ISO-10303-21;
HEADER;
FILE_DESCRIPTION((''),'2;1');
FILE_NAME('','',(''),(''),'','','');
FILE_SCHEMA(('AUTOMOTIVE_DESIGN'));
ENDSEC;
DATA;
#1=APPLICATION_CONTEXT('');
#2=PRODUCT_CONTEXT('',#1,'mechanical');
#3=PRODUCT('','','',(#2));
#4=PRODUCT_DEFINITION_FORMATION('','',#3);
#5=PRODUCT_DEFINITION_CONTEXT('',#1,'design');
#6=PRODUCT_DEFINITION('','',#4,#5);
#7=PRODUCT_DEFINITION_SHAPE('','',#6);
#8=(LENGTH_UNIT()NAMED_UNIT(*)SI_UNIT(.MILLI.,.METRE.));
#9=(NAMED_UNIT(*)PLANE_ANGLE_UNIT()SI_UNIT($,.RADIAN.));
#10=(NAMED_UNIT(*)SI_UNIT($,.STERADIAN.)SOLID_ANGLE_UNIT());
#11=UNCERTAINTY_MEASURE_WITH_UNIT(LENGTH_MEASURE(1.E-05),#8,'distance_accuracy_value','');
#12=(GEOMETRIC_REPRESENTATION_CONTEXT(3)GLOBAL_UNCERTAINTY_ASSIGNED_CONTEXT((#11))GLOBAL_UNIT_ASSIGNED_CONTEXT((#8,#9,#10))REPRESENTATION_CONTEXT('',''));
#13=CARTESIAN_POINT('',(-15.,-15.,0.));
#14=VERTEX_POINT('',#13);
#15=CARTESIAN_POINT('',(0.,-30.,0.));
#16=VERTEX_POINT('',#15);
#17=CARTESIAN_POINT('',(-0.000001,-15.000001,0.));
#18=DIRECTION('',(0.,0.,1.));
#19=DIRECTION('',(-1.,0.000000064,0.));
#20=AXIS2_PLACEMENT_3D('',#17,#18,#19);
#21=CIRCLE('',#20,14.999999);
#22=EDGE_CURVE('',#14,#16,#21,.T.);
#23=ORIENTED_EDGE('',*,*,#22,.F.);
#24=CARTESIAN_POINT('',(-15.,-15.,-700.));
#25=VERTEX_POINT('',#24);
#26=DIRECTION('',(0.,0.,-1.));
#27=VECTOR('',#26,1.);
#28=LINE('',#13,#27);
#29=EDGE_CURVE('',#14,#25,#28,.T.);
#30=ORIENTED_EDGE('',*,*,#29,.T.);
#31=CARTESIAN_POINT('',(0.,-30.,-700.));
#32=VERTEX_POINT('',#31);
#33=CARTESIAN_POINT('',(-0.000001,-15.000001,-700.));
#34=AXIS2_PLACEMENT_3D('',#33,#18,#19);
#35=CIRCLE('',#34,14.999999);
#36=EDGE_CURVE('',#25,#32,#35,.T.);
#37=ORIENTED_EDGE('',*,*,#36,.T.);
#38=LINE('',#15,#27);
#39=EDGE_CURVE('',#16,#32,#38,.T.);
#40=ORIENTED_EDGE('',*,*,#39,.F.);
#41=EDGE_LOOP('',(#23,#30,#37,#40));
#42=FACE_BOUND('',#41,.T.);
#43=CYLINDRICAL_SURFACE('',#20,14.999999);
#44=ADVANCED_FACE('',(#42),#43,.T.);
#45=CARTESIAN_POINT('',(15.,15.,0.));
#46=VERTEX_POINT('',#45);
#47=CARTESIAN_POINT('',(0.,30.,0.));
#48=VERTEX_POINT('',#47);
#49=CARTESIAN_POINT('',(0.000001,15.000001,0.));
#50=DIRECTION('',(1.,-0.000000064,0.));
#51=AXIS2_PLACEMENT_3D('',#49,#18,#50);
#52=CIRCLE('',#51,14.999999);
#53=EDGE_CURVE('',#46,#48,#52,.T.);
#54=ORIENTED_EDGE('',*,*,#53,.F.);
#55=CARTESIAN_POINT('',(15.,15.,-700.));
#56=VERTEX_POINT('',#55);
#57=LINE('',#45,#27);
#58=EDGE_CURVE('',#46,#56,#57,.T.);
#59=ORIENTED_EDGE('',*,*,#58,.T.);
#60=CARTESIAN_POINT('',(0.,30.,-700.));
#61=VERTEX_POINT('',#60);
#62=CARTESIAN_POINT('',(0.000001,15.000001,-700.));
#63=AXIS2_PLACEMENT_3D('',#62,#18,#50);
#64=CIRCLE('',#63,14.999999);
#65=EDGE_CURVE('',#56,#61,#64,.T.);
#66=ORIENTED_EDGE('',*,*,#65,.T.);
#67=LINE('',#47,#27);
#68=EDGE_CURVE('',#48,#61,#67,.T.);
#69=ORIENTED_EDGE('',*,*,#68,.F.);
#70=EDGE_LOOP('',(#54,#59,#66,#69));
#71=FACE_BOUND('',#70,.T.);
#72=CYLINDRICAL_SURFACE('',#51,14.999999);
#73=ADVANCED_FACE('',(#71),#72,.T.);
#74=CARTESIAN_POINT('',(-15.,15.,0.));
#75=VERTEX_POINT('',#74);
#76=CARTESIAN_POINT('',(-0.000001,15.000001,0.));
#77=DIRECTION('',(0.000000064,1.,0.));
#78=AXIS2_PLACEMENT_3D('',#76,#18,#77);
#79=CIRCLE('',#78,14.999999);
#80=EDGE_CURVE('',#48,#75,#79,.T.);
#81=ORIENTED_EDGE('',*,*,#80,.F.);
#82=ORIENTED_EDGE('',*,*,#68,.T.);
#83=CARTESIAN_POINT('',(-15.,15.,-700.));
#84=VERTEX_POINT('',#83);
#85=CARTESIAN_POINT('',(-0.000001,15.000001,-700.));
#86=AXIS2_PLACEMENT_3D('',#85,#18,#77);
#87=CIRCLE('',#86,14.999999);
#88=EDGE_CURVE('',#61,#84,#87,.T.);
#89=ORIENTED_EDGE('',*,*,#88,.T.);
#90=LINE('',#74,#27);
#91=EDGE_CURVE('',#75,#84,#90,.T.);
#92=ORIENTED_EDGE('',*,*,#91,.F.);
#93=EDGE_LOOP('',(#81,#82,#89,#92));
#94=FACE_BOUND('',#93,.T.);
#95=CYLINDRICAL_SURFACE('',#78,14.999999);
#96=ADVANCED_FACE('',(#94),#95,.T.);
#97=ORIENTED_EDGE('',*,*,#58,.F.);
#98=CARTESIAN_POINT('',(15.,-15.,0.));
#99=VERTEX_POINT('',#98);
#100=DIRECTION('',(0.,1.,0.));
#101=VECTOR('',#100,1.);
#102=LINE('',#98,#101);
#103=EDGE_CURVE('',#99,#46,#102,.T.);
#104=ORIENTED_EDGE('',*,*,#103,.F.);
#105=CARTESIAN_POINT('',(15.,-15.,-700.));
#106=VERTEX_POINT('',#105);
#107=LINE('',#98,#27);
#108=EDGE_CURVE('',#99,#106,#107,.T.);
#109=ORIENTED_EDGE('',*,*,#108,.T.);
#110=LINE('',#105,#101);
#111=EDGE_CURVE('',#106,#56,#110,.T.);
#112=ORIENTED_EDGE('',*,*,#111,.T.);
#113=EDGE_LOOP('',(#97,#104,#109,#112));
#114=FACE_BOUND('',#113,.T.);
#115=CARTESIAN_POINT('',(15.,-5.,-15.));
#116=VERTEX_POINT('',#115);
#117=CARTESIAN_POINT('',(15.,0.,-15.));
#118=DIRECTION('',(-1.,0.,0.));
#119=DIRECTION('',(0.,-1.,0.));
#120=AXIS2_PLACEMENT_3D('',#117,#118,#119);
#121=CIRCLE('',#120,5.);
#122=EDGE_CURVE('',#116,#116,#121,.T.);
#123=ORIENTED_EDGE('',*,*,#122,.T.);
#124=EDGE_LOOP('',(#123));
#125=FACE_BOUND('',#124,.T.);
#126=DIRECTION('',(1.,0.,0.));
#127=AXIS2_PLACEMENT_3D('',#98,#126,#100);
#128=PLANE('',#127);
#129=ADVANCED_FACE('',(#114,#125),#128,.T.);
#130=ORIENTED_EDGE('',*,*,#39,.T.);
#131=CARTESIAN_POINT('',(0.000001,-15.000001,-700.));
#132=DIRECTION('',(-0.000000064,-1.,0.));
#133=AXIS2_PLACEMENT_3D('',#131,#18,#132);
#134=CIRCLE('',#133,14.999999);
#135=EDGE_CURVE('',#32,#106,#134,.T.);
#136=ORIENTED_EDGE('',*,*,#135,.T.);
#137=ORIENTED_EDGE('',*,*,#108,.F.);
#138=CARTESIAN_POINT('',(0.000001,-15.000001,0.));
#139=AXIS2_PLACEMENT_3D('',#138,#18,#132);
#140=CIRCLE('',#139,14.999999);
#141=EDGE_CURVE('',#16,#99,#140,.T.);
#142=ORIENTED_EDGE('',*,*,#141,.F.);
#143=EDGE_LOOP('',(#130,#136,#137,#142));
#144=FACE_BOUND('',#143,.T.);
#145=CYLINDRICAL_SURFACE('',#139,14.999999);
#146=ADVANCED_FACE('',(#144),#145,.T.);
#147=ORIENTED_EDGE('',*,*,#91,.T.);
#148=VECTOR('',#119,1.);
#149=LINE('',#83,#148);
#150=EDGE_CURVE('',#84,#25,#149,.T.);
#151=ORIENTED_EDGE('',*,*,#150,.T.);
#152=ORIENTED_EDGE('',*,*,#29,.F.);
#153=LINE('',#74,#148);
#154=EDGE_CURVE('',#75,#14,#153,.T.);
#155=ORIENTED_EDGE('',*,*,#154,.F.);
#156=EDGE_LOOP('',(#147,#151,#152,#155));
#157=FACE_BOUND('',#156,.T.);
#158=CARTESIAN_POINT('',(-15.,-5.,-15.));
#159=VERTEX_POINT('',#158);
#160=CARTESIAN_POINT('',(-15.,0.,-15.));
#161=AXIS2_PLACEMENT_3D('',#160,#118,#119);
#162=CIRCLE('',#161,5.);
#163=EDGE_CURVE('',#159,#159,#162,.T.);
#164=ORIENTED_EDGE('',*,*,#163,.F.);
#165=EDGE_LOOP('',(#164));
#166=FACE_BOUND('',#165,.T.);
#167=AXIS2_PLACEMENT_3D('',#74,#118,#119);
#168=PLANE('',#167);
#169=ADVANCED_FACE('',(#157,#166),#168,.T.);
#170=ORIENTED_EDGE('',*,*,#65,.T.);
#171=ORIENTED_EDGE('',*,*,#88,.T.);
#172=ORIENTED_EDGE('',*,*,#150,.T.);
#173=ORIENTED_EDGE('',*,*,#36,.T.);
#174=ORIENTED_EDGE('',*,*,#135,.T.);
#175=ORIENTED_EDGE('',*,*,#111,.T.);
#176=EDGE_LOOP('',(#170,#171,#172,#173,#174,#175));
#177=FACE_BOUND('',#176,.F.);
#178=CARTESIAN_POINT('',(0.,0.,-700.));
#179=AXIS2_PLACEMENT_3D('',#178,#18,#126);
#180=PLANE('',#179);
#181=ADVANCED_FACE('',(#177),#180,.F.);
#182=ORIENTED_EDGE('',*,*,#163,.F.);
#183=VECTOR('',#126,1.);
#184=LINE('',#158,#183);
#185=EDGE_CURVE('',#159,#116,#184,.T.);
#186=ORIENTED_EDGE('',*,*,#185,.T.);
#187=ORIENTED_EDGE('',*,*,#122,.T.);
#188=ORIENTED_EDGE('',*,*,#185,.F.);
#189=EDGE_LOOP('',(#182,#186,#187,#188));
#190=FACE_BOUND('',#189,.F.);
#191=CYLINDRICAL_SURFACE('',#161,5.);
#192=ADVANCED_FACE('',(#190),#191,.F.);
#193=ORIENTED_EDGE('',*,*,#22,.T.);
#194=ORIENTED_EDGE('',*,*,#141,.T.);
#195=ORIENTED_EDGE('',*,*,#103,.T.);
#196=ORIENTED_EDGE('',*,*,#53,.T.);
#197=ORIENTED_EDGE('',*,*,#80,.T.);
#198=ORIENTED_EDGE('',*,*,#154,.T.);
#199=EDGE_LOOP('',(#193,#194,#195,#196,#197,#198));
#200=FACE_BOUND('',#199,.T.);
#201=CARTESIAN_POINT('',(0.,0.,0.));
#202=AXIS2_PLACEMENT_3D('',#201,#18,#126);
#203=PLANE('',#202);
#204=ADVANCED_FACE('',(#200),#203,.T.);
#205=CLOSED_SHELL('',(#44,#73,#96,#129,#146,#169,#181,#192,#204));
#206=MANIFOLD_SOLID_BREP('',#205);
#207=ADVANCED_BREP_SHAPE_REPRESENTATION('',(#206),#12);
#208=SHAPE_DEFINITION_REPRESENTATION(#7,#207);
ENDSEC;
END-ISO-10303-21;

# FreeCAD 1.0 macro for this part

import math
import FreeCAD as App
import Part
import Sketcher

V = App.Vector
Q = App.Units.Quantity

doc = App.newDocument("Part")
params = doc.addObject("Spreadsheet::Sheet", "Params")
for row, (alias, value) in enumerate([
    ("sketch1_radius", "14.999999 mm"),
    ("sketch1_height", "30 mm"),
    ("pad1_length", "700 mm"),
    ("sketch2_diameter", "10 mm"),
    ("pocket1_length", "35 mm"),
], start=1):
    params.set(f"A{row}", alias)
    params.set(f"B{row}", "=" + value)
    params.setAlias(f"B{row}", alias)

body = doc.addObject("PartDesign::Body", "Body")

# Sketch on XY plane
sketch1 = doc.addObject("Sketcher::SketchObject", "Sketch")
body.addObject(sketch1)
sketch1.AttachmentSupport = (doc.XY_Plane, [""])
sketch1.MapMode = "FlatFace"
sketch1.addGeometry([
    Part.ArcOfCircle(Part.Circle(V(0, 15, 0), V(0, 0, 1), 15), math.radians(90), math.radians(180)),  # 0
    Part.LineSegment(V(-15, 15, 0), V(-15, -15, 0)),  # 1
    Part.ArcOfCircle(Part.Circle(V(0, -15, 0), V(0, 0, 1), 15), math.radians(180), math.radians(270)),  # 2
    Part.ArcOfCircle(Part.Circle(V(0, -15, 0), V(0, 0, 1), 15), math.radians(-90), math.radians(0)),  # 3
    Part.LineSegment(V(15, -15, 0), V(15, 15, 0)),  # 4
    Part.ArcOfCircle(Part.Circle(V(0, 15, 0), V(0, 0, 1), 15), math.radians(0), math.radians(90)),  # 5
], False)
sketch1.addConstraint([
    Sketcher.Constraint("Tangent", 0, 2, 1, 1),
    Sketcher.Constraint("Tangent", 1, 2, 2, 1),
    Sketcher.Constraint("Tangent", 2, 2, 3, 1),
    Sketcher.Constraint("Tangent", 3, 2, 4, 1),
    Sketcher.Constraint("Tangent", 4, 2, 5, 1),
    Sketcher.Constraint("Tangent", 5, 2, 0, 1),
    Sketcher.Constraint("Vertical", 1),
    Sketcher.Constraint("Vertical", 4),
    Sketcher.Constraint("Equal", 0, 2),
    Sketcher.Constraint("Equal", 2, 3),
    Sketcher.Constraint("Symmetric", 0, 3, 2, 3, -1, 1),
    Sketcher.Constraint("PointOnObject", 2, 2, -2),
    Sketcher.Constraint("PointOnObject", 5, 2, -2),
    Sketcher.Constraint("Radius", 0, Q("14.999999 mm")),
    Sketcher.Constraint("DistanceY", 1, 2, 1, 1, Q("30 mm")),
])
sketch1.setExpression("Constraints[13]", "Params.sketch1_radius")
sketch1.setExpression("Constraints[14]", "Params.sketch1_height")
pad1 = doc.addObject("PartDesign::Pad", "Pad")
body.addObject(pad1)
pad1.Profile = sketch1
pad1.setExpression("Length", "Params.pad1_length")
pad1.Reversed = True

# Sketch on YZ plane
sketch2 = doc.addObject("Sketcher::SketchObject", "Sketch001")
body.addObject(sketch2)
sketch2.AttachmentSupport = (doc.YZ_Plane, [""])
sketch2.MapMode = "FlatFace"
sketch2.AttachmentOffset = App.Placement(V(0, 0, -15), App.Rotation())
sketch2.addGeometry(Part.Circle(V(0, -15, 0), V(0, 0, 1), 5), False)
sketch2.addConstraint([
    Sketcher.Constraint("PointOnObject", 0, 3, -2),
    Sketcher.Constraint("Diameter", 0, Q("10 mm")),
    Sketcher.Constraint("DistanceY", 0, 3, -1, 1, Q("15 mm")),
])
sketch2.setExpression("Constraints[1]", "Params.sketch2_diameter")
pocket1 = doc.addObject("PartDesign::Pocket", "Pocket")
body.addObject(pocket1)
pocket1.Profile = sketch2
pocket1.setExpression("Length", "Params.pocket1_length")
pocket1.Reversed = True

doc.recompute()
